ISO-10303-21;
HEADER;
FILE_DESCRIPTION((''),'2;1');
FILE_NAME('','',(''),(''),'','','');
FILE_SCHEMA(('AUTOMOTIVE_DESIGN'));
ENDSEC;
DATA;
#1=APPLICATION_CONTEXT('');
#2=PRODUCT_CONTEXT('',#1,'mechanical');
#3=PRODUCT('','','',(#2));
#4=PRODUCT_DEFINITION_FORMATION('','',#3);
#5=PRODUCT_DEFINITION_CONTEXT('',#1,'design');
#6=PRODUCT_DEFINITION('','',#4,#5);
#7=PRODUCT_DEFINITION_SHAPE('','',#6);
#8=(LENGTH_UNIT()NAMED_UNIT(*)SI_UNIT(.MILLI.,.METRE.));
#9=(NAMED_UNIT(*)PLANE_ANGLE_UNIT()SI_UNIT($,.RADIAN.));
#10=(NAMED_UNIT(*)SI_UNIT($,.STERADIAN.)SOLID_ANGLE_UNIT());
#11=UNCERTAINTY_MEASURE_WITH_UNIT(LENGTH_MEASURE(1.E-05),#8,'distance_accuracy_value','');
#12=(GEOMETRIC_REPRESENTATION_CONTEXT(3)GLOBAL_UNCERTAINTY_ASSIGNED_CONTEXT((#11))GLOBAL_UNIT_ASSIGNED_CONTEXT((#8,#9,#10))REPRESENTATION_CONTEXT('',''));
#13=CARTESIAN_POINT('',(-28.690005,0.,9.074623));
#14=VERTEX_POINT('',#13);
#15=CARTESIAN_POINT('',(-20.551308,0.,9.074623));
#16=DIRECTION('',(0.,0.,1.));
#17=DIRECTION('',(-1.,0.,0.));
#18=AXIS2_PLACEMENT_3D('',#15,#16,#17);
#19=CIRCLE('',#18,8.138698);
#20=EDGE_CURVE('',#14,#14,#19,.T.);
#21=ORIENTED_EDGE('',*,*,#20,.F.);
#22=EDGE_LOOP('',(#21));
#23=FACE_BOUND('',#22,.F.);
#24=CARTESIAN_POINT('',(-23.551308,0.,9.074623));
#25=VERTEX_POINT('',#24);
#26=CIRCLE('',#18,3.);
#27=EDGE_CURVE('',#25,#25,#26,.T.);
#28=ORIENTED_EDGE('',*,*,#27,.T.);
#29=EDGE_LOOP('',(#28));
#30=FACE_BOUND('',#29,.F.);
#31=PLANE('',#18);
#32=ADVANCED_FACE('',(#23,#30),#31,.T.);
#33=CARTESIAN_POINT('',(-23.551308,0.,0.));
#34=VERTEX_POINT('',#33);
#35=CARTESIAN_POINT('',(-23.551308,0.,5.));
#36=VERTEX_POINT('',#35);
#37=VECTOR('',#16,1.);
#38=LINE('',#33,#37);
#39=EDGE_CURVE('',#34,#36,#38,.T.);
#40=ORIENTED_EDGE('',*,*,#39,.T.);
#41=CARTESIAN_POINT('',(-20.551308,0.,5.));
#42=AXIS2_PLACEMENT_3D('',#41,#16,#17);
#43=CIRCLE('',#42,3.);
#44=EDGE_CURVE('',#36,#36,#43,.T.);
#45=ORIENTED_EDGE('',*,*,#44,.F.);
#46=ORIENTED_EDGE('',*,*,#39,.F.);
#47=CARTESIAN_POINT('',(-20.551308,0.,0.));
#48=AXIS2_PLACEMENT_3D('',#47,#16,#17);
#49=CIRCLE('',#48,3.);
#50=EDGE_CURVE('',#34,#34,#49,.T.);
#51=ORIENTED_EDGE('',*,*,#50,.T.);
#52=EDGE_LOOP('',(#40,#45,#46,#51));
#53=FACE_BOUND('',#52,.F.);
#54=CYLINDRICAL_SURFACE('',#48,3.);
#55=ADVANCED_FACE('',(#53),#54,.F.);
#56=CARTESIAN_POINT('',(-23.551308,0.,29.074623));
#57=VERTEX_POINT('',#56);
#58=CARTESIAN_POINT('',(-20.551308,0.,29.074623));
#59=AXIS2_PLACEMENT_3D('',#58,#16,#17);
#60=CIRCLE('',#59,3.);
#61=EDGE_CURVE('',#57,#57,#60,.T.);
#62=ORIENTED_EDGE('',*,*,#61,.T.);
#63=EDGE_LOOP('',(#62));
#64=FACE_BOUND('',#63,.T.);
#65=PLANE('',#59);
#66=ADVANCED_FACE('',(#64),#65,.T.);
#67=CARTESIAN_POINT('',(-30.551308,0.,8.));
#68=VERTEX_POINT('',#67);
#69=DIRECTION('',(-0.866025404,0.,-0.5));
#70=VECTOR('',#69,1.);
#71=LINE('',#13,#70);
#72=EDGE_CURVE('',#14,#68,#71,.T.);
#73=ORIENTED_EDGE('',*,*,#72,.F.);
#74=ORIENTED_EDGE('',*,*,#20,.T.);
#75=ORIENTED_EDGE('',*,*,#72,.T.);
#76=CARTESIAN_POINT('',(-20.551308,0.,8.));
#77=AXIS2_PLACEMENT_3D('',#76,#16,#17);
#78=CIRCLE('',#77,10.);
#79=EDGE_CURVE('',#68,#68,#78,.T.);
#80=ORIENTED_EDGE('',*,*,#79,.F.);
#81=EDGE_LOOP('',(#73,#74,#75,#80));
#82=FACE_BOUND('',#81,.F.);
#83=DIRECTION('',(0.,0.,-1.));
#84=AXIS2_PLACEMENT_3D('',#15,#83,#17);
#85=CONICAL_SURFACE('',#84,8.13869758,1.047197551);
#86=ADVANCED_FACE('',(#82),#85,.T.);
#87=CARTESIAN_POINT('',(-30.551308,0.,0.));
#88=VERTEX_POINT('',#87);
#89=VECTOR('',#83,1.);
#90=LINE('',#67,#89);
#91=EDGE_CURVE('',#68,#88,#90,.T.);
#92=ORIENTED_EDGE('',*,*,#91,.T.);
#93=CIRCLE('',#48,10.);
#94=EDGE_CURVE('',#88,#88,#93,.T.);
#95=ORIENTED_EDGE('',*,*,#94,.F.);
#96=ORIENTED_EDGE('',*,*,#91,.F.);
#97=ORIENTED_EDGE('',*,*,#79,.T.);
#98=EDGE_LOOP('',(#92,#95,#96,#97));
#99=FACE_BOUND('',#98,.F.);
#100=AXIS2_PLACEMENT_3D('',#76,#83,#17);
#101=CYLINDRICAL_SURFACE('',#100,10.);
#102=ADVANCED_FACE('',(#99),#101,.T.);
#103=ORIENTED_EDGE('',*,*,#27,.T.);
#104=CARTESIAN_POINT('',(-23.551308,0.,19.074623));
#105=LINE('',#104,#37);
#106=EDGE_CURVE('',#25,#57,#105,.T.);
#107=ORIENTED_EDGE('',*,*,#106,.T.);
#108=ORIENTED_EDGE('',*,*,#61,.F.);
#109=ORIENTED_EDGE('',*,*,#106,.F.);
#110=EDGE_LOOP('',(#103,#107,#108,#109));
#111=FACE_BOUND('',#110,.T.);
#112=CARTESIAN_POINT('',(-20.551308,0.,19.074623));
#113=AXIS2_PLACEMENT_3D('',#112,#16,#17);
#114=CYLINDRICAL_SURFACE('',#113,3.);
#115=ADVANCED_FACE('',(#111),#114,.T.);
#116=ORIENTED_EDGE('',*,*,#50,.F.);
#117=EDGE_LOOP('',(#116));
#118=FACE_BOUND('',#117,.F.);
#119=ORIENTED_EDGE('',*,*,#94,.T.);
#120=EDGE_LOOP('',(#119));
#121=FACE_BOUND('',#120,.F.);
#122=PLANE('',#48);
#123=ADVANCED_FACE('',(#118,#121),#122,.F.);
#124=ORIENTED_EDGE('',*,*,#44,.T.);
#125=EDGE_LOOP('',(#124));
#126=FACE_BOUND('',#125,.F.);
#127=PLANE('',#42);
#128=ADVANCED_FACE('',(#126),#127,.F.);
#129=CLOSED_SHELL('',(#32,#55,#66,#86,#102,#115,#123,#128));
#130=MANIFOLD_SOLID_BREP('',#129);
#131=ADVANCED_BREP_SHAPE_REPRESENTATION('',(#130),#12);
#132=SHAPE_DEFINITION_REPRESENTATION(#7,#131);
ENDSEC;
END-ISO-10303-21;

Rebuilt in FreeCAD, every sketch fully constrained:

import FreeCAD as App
import Part
import Sketcher
from FreeCAD import Vector
Q = App.Units.Quantity

doc = App.newDocument("Part")
body = doc.addObject("PartDesign::Body", "Body")

# Sketch on XZ plane
sketch1 = body.newObject("Sketcher::SketchObject", "Sketch")
sketch1.AttachmentSupport = (doc.getObject("XZ_Plane"), [""])
sketch1.MapMode = "FlatFace"
sketch1.addGeometry(Part.LineSegment(Vector(-23.6, 29.1, 0), Vector(-23.6, 9.1, 0)), False)
sketch1.addGeometry(Part.LineSegment(Vector(-23.6, 9.1, 0), Vector(-28.7, 9.1, 0)), False)
sketch1.addGeometry(Part.LineSegment(Vector(-28.7, 9.1, 0), Vector(-30.6, 8, 0)), False)
sketch1.addGeometry(Part.LineSegment(Vector(-30.6, 8, 0), Vector(-30.6, 0, 0)), False)
sketch1.addGeometry(Part.LineSegment(Vector(-30.6, 0, 0), Vector(-23.6, 0, 0)), False)
sketch1.addGeometry(Part.LineSegment(Vector(-23.6, 0, 0), Vector(-23.6, 5, 0)), False)
sketch1.addGeometry(Part.LineSegment(Vector(-23.6, 5, 0), Vector(-20.6, 5, 0)), False)
sketch1.addGeometry(Part.LineSegment(Vector(-20.6, 5, 0), Vector(-20.6, 29.1, 0)), False)
sketch1.addGeometry(Part.LineSegment(Vector(-20.6, 29.1, 0), Vector(-23.6, 29.1, 0)), False)
sketch1.addGeometry(Part.LineSegment(Vector(-20.6, 0, 0), Vector(-20.6, 29.1, 0)), True)  # axis
sketch1.addConstraint(Sketcher.Constraint("Coincident", 0, 2, 1, 1))
sketch1.addConstraint(Sketcher.Constraint("Coincident", 1, 2, 2, 1))
sketch1.addConstraint(Sketcher.Constraint("Coincident", 2, 2, 3, 1))
sketch1.addConstraint(Sketcher.Constraint("Coincident", 3, 2, 4, 1))
sketch1.addConstraint(Sketcher.Constraint("Coincident", 4, 2, 5, 1))
sketch1.addConstraint(Sketcher.Constraint("Coincident", 5, 2, 6, 1))
sketch1.addConstraint(Sketcher.Constraint("Coincident", 6, 2, 7, 1))
sketch1.addConstraint(Sketcher.Constraint("Coincident", 7, 2, 8, 1))
sketch1.addConstraint(Sketcher.Constraint("Coincident", 8, 2, 0, 1))
sketch1.addConstraint(Sketcher.Constraint("Vertical", 0))
sketch1.addConstraint(Sketcher.Constraint("Horizontal", 1))
sketch1.addConstraint(Sketcher.Constraint("Vertical", 3))
sketch1.addConstraint(Sketcher.Constraint("Horizontal", 4))
sketch1.addConstraint(Sketcher.Constraint("Vertical", 5))
sketch1.addConstraint(Sketcher.Constraint("Horizontal", 6))
sketch1.addConstraint(Sketcher.Constraint("Vertical", 7))
sketch1.addConstraint(Sketcher.Constraint("Horizontal", 8))
sketch1.addConstraint(Sketcher.Constraint("Vertical", 9))
sketch1.addConstraint(Sketcher.Constraint("Coincident", 9, 2, 7, 2))
sketch1.addConstraint(Sketcher.Constraint("PointOnObject", 3, 2, -1))
sketch1.addConstraint(Sketcher.Constraint("PointOnObject", 9, 1, -1))
sketch1.addConstraint(Sketcher.Constraint("Vertical", 0, 2, 4, 2))
sketch1.addConstraint(Sketcher.Constraint("DistanceX", 4, 1, 4, 2, Q("7 mm")))
sketch1.addConstraint(Sketcher.Constraint("DistanceX", 6, 1, 6, 2, Q("3 mm")))
sketch1.addConstraint(Sketcher.Constraint("DistanceY", 0, 2, 0, 1, Q("20 mm")))
sketch1.addConstraint(Sketcher.Constraint("DistanceY", 3, 2, 3, 1, Q("8 mm")))
sketch1.addConstraint(Sketcher.Constraint("DistanceY", 5, 1, 5, 2, Q("5 mm")))
sketch1.addConstraint(Sketcher.Constraint("Angle", 2, Q("-150 deg")))
sketch1.addConstraint(Sketcher.Constraint("DistanceX", 1, 2, 1, 1, Q("5.138698 mm")))
sketch1.addConstraint(Sketcher.Constraint("DistanceX", 0, 2, -1, 1, Q("23.551308 mm")))
revolution = body.newObject("PartDesign::Revolution", "Revolution")
revolution.Profile = sketch1
revolution.ReferenceAxis = (sketch1, ["Axis0"])
revolution.Angle = 360

doc.recompute()
